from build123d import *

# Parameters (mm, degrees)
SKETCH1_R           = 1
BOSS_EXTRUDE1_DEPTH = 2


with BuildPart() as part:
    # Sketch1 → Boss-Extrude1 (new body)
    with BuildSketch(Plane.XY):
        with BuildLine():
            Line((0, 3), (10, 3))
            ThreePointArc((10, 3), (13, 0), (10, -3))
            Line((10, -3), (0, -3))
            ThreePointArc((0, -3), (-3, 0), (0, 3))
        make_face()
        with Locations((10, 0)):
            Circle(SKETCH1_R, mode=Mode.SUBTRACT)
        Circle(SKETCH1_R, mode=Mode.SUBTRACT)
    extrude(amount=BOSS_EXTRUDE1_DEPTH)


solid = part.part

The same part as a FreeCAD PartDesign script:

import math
import FreeCAD as App
import Part
import Sketcher
Q = App.Units.Quantity

doc = App.newDocument("Part")
body = doc.addObject("PartDesign::Body", "Body")

# Sketch on XY plane
sketch1 = body.newObject("Sketcher::SketchObject", "Sketch")
sketch1.AttachmentSupport = (doc.getObject("XY_Plane"), [""])
sketch1.MapMode = "FlatFace"
sketch1.addGeometry([
    Part.LineSegment(App.Vector(10, 3, 0), App.Vector(0, 3, 0)),  # 0
    Part.ArcOfCircle(Part.Circle(App.Vector(0, 0, 0), App.Vector(0, 0, 1), 3), math.radians(90), math.radians(270)),  # 1
    Part.LineSegment(App.Vector(0, -3, 0), App.Vector(10, -3, 0)),  # 2
    Part.ArcOfCircle(Part.Circle(App.Vector(10, 0, 0), App.Vector(0, 0, 1), 3), math.radians(-90), math.radians(90)),  # 3
    Part.Circle(App.Vector(10, 0, 0), App.Vector(0, 0, 1), 1),  # 4
    Part.Circle(App.Vector(0, 0, 0), App.Vector(0, 0, 1), 1),  # 5
], False)
sketch1.addConstraint([
    Sketcher.Constraint("Tangent", 0, 2, 1, 1),
    Sketcher.Constraint("Tangent", 1, 2, 2, 1),
    Sketcher.Constraint("Tangent", 2, 2, 3, 1),
    Sketcher.Constraint("Tangent", 3, 2, 0, 1),
    Sketcher.Constraint("Horizontal", 0),
    Sketcher.Constraint("Horizontal", 2),
    Sketcher.Constraint("Coincident", 1, 3, -1, 1),
    Sketcher.Constraint("Coincident", 5, 3, -1, 1),
    Sketcher.Constraint("Coincident", 4, 3, 3, 3),
    Sketcher.Constraint("Equal", 4, 5),
    Sketcher.Constraint("Diameter", 4, Q("2 mm")),
    Sketcher.Constraint("Radius", 1, Q("3 mm")),
    Sketcher.Constraint("DistanceX", 0, 2, 0, 1, Q("10 mm")),
])
pad1 = body.newObject("PartDesign::Pad", "Pad")
pad1.Profile = sketch1
pad1.Length = 2

doc.recompute()
